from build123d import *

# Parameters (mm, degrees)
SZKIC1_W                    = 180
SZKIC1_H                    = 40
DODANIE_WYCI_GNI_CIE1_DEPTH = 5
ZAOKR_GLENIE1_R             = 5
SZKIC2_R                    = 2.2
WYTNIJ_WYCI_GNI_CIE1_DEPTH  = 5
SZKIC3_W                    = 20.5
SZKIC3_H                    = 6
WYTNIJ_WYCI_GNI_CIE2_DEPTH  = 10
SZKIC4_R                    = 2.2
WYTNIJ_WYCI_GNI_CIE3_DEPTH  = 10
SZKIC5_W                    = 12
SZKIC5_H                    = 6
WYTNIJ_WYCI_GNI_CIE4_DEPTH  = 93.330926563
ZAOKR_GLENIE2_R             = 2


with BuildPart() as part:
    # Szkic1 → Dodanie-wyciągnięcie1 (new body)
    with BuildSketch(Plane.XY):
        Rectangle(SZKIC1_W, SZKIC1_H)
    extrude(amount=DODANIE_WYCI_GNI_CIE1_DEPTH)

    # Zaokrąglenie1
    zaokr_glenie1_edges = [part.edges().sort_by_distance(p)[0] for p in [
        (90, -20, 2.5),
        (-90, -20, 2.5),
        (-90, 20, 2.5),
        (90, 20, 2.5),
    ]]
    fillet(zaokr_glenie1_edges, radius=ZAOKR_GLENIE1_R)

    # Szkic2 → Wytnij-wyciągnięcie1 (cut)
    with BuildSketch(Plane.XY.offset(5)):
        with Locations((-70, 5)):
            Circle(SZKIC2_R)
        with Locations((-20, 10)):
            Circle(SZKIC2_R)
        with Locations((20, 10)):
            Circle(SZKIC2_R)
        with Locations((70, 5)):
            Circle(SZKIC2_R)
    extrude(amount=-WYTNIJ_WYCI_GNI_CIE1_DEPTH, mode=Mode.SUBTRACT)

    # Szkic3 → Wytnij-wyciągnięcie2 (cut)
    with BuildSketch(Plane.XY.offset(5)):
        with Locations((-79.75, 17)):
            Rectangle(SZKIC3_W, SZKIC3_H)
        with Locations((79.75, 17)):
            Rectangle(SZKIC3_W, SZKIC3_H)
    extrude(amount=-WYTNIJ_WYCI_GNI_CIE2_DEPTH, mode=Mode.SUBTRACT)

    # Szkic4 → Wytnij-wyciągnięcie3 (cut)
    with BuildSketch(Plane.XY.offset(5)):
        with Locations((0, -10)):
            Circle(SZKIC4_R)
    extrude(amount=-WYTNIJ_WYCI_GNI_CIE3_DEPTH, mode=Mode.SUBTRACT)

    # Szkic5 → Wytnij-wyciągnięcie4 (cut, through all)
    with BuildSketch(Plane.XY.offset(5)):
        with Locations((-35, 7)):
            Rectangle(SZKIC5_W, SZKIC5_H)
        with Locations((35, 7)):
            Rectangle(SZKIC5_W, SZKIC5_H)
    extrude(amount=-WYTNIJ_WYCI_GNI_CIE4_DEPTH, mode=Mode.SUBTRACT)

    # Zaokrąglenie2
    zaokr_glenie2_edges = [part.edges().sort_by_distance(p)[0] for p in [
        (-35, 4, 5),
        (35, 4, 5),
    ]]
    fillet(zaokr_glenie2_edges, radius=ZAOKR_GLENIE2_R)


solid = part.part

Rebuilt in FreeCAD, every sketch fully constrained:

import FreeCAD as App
import Part
import Sketcher


def edges_at(feature, points):
    """Names of the edges that pass closest to the given points."""
    edges = feature.Shape.Edges
    near = lambda p: min(range(len(edges)), key=lambda i: edges[i].distToShape(Part.Vertex(*p))[0])
    return sorted({f"Edge{near(p) + 1}" for p in points})


def add_polygon(sketch, points):
    """Adds a closed chain of lines whose ends are joined by coincident constraints."""
    first, n = sketch.GeometryCount, len(points)
    for a, b in zip(points, points[1:] + points[:1]):
        sketch.addGeometry(Part.LineSegment(App.Vector(*a, 0), App.Vector(*b, 0)), False)
    for i in range(n):
        sketch.addConstraint(Sketcher.Constraint("Coincident", first + i, 2, first + (i + 1) % n, 1))

doc = App.newDocument("Part")
body = doc.addObject("PartDesign::Body", "Body")

# Sketch on XY plane
sketch1 = doc.addObject("Sketcher::SketchObject", "Sketch")
body.addObject(sketch1)
sketch1.AttachmentSupport = (doc.XY_Plane, [""])
sketch1.MapMode = "FlatFace"
add_polygon(sketch1, [(-90, 20), (-90, -20), (90, -20), (90, 20)])  # lines 0-3
sketch1.addConstraint([
    Sketcher.Constraint("Vertical", 0),
    Sketcher.Constraint("Horizontal", 1),
    Sketcher.Constraint("Vertical", 2),
    Sketcher.Constraint("Horizontal", 3),
    Sketcher.Constraint("Symmetric", 0, 2, 2, 2, -1, 1),
    Sketcher.Constraint("DistanceX", 1, 1, 1, 2, 180.0),
    Sketcher.Constraint("DistanceY", 0, 2, 0, 1, 40.0),
])
pad1 = doc.addObject("PartDesign::Pad", "Pad")
body.addObject(pad1)
pad1.Profile = sketch1
pad1.Length = 5
doc.recompute()

fillet = doc.addObject("PartDesign::Fillet", "Fillet")
body.addObject(fillet)
fillet.Base = (pad1, edges_at(pad1, [
    (90, -20, 2.5),
    (-90, -20, 2.5),
    (-90, 20, 2.5),
    (90, 20, 2.5),
]))
fillet.Radius = 5

# Sketch on XY plane
sketch2 = doc.addObject("Sketcher::SketchObject", "Sketch001")
body.addObject(sketch2)
sketch2.AttachmentSupport = (doc.XY_Plane, [""])
sketch2.MapMode = "FlatFace"
sketch2.AttachmentOffset = App.Placement(App.Vector(0, 0, 5), App.Rotation())
sketch2.addGeometry([
    Part.Circle(App.Vector(-70, 5, 0), App.Vector(0, 0, 1), 2.2),
    Part.Circle(App.Vector(-20, 10, 0), App.Vector(0, 0, 1), 2.2),
    Part.Circle(App.Vector(20, 10, 0), App.Vector(0, 0, 1), 2.2),
    Part.Circle(App.Vector(70, 5, 0), App.Vector(0, 0, 1), 2.2),
], False)
sketch2.addConstraint([
    Sketcher.Constraint("Equal", 0, 1),
    Sketcher.Constraint("Equal", 1, 2),
    Sketcher.Constraint("Equal", 2, 3),
    Sketcher.Constraint("Symmetric", 1, 3, 2, 3, -2),
    Sketcher.Constraint("Symmetric", 0, 3, 3, 3, -2),
    Sketcher.Constraint("Diameter", 0, 4.4),
    Sketcher.Constraint("DistanceX", 0, 3, -1, 1, 70.0),
    Sketcher.Constraint("DistanceY", -1, 1, 0, 3, 5.0),
    Sketcher.Constraint("DistanceX", 1, 3, -1, 1, 20.0),
    Sketcher.Constraint("DistanceY", -1, 1, 1, 3, 10.0),
])
pocket1 = doc.addObject("PartDesign::Pocket", "Pocket")
body.addObject(pocket1)
pocket1.Profile = sketch2
pocket1.Length = 5

# Sketch on XY plane
sketch3 = doc.addObject("Sketcher::SketchObject", "Sketch002")
body.addObject(sketch3)
sketch3.AttachmentSupport = (doc.XY_Plane, [""])
sketch3.MapMode = "FlatFace"
sketch3.AttachmentOffset = App.Placement(App.Vector(0, 0, 5), App.Rotation())
add_polygon(sketch3, [(-90, 20), (-90, 14), (-70, 14), (-70, 20)])  # lines 0-3
add_polygon(sketch3, [(70, 20), (70, 14), (90, 14), (90, 20)])  # lines 4-7
sketch3.addConstraint([
    Sketcher.Constraint("Vertical", 0),
    Sketcher.Constraint("Horizontal", 1),
    Sketcher.Constraint("Vertical", 2),
    Sketcher.Constraint("Horizontal", 3),
    Sketcher.Constraint("Vertical", 4),
    Sketcher.Constraint("Horizontal", 5),
    Sketcher.Constraint("Vertical", 6),
    Sketcher.Constraint("Horizontal", 7),
    Sketcher.Constraint("Symmetric", 1, 2, 4, 2, -2),
    Sketcher.Constraint("Symmetric", 3, 2, 6, 2, -2),
    Sketcher.Constraint("DistanceY", 0, 2, 0, 1, 6.0),
    Sketcher.Constraint("DistanceX", 1, 1, 1, 2, 20.5),
    Sketcher.Constraint("DistanceX", 0, 2, -1, 1, 90.0),
    Sketcher.Constraint("DistanceY", -1, 1, 0, 2, 14.0),
])
pocket2 = doc.addObject("PartDesign::Pocket", "Pocket001")
body.addObject(pocket2)
pocket2.Profile = sketch3
pocket2.Length = 10

# Sketch on XY plane
sketch4 = doc.addObject("Sketcher::SketchObject", "Sketch003")
body.addObject(sketch4)
sketch4.AttachmentSupport = (doc.XY_Plane, [""])
sketch4.MapMode = "FlatFace"
sketch4.AttachmentOffset = App.Placement(App.Vector(0, 0, 5), App.Rotation())
sketch4.addGeometry(Part.Circle(App.Vector(0, -10, 0), App.Vector(0, 0, 1), 2.2), False)
sketch4.addConstraint([
    Sketcher.Constraint("PointOnObject", 0, 3, -2),
    Sketcher.Constraint("Diameter", 0, 4.4),
    Sketcher.Constraint("DistanceY", 0, 3, -1, 1, 10.0),
])
pocket3 = doc.addObject("PartDesign::Pocket", "Pocket002")
body.addObject(pocket3)
pocket3.Profile = sketch4
pocket3.Length = 10

# Sketch on XY plane
sketch5 = doc.addObject("Sketcher::SketchObject", "Sketch004")
body.addObject(sketch5)
sketch5.AttachmentSupport = (doc.XY_Plane, [""])
sketch5.MapMode = "FlatFace"
sketch5.AttachmentOffset = App.Placement(App.Vector(0, 0, 5), App.Rotation())
add_polygon(sketch5, [(-41, 10), (-41, 4), (-29, 4), (-29, 10)])  # lines 0-3
add_polygon(sketch5, [(29, 10), (29, 4), (41, 4), (41, 10)])  # lines 4-7
sketch5.addConstraint([
    Sketcher.Constraint("Vertical", 0),
    Sketcher.Constraint("Horizontal", 1),
    Sketcher.Constraint("Vertical", 2),
    Sketcher.Constraint("Horizontal", 3),
    Sketcher.Constraint("Vertical", 4),
    Sketcher.Constraint("Horizontal", 5),
    Sketcher.Constraint("Vertical", 6),
    Sketcher.Constraint("Horizontal", 7),
    Sketcher.Constraint("Symmetric", 1, 2, 4, 2, -2),
    Sketcher.Constraint("Symmetric", 3, 2, 6, 2, -2),
    Sketcher.Constraint("DistanceX", 1, 1, 1, 2, 12.0),
    Sketcher.Constraint("DistanceY", 0, 2, 0, 1, 6.0),
    Sketcher.Constraint("DistanceX", 0, 2, -1, 1, 41.0),
    Sketcher.Constraint("DistanceY", -1, 1, 0, 2, 4.0),
])
pocket4 = doc.addObject("PartDesign::Pocket", "Pocket003")
body.addObject(pocket4)
pocket4.Profile = sketch5
pocket4.Type = "ThroughAll"
doc.recompute()

fillet2 = doc.addObject("PartDesign::Fillet", "Fillet001")
body.addObject(fillet2)
fillet2.Base = (pocket4, edges_at(pocket4, [(-35, 4, 5), (35, 4, 5)]))
fillet2.Radius = 2

doc.recompute()
